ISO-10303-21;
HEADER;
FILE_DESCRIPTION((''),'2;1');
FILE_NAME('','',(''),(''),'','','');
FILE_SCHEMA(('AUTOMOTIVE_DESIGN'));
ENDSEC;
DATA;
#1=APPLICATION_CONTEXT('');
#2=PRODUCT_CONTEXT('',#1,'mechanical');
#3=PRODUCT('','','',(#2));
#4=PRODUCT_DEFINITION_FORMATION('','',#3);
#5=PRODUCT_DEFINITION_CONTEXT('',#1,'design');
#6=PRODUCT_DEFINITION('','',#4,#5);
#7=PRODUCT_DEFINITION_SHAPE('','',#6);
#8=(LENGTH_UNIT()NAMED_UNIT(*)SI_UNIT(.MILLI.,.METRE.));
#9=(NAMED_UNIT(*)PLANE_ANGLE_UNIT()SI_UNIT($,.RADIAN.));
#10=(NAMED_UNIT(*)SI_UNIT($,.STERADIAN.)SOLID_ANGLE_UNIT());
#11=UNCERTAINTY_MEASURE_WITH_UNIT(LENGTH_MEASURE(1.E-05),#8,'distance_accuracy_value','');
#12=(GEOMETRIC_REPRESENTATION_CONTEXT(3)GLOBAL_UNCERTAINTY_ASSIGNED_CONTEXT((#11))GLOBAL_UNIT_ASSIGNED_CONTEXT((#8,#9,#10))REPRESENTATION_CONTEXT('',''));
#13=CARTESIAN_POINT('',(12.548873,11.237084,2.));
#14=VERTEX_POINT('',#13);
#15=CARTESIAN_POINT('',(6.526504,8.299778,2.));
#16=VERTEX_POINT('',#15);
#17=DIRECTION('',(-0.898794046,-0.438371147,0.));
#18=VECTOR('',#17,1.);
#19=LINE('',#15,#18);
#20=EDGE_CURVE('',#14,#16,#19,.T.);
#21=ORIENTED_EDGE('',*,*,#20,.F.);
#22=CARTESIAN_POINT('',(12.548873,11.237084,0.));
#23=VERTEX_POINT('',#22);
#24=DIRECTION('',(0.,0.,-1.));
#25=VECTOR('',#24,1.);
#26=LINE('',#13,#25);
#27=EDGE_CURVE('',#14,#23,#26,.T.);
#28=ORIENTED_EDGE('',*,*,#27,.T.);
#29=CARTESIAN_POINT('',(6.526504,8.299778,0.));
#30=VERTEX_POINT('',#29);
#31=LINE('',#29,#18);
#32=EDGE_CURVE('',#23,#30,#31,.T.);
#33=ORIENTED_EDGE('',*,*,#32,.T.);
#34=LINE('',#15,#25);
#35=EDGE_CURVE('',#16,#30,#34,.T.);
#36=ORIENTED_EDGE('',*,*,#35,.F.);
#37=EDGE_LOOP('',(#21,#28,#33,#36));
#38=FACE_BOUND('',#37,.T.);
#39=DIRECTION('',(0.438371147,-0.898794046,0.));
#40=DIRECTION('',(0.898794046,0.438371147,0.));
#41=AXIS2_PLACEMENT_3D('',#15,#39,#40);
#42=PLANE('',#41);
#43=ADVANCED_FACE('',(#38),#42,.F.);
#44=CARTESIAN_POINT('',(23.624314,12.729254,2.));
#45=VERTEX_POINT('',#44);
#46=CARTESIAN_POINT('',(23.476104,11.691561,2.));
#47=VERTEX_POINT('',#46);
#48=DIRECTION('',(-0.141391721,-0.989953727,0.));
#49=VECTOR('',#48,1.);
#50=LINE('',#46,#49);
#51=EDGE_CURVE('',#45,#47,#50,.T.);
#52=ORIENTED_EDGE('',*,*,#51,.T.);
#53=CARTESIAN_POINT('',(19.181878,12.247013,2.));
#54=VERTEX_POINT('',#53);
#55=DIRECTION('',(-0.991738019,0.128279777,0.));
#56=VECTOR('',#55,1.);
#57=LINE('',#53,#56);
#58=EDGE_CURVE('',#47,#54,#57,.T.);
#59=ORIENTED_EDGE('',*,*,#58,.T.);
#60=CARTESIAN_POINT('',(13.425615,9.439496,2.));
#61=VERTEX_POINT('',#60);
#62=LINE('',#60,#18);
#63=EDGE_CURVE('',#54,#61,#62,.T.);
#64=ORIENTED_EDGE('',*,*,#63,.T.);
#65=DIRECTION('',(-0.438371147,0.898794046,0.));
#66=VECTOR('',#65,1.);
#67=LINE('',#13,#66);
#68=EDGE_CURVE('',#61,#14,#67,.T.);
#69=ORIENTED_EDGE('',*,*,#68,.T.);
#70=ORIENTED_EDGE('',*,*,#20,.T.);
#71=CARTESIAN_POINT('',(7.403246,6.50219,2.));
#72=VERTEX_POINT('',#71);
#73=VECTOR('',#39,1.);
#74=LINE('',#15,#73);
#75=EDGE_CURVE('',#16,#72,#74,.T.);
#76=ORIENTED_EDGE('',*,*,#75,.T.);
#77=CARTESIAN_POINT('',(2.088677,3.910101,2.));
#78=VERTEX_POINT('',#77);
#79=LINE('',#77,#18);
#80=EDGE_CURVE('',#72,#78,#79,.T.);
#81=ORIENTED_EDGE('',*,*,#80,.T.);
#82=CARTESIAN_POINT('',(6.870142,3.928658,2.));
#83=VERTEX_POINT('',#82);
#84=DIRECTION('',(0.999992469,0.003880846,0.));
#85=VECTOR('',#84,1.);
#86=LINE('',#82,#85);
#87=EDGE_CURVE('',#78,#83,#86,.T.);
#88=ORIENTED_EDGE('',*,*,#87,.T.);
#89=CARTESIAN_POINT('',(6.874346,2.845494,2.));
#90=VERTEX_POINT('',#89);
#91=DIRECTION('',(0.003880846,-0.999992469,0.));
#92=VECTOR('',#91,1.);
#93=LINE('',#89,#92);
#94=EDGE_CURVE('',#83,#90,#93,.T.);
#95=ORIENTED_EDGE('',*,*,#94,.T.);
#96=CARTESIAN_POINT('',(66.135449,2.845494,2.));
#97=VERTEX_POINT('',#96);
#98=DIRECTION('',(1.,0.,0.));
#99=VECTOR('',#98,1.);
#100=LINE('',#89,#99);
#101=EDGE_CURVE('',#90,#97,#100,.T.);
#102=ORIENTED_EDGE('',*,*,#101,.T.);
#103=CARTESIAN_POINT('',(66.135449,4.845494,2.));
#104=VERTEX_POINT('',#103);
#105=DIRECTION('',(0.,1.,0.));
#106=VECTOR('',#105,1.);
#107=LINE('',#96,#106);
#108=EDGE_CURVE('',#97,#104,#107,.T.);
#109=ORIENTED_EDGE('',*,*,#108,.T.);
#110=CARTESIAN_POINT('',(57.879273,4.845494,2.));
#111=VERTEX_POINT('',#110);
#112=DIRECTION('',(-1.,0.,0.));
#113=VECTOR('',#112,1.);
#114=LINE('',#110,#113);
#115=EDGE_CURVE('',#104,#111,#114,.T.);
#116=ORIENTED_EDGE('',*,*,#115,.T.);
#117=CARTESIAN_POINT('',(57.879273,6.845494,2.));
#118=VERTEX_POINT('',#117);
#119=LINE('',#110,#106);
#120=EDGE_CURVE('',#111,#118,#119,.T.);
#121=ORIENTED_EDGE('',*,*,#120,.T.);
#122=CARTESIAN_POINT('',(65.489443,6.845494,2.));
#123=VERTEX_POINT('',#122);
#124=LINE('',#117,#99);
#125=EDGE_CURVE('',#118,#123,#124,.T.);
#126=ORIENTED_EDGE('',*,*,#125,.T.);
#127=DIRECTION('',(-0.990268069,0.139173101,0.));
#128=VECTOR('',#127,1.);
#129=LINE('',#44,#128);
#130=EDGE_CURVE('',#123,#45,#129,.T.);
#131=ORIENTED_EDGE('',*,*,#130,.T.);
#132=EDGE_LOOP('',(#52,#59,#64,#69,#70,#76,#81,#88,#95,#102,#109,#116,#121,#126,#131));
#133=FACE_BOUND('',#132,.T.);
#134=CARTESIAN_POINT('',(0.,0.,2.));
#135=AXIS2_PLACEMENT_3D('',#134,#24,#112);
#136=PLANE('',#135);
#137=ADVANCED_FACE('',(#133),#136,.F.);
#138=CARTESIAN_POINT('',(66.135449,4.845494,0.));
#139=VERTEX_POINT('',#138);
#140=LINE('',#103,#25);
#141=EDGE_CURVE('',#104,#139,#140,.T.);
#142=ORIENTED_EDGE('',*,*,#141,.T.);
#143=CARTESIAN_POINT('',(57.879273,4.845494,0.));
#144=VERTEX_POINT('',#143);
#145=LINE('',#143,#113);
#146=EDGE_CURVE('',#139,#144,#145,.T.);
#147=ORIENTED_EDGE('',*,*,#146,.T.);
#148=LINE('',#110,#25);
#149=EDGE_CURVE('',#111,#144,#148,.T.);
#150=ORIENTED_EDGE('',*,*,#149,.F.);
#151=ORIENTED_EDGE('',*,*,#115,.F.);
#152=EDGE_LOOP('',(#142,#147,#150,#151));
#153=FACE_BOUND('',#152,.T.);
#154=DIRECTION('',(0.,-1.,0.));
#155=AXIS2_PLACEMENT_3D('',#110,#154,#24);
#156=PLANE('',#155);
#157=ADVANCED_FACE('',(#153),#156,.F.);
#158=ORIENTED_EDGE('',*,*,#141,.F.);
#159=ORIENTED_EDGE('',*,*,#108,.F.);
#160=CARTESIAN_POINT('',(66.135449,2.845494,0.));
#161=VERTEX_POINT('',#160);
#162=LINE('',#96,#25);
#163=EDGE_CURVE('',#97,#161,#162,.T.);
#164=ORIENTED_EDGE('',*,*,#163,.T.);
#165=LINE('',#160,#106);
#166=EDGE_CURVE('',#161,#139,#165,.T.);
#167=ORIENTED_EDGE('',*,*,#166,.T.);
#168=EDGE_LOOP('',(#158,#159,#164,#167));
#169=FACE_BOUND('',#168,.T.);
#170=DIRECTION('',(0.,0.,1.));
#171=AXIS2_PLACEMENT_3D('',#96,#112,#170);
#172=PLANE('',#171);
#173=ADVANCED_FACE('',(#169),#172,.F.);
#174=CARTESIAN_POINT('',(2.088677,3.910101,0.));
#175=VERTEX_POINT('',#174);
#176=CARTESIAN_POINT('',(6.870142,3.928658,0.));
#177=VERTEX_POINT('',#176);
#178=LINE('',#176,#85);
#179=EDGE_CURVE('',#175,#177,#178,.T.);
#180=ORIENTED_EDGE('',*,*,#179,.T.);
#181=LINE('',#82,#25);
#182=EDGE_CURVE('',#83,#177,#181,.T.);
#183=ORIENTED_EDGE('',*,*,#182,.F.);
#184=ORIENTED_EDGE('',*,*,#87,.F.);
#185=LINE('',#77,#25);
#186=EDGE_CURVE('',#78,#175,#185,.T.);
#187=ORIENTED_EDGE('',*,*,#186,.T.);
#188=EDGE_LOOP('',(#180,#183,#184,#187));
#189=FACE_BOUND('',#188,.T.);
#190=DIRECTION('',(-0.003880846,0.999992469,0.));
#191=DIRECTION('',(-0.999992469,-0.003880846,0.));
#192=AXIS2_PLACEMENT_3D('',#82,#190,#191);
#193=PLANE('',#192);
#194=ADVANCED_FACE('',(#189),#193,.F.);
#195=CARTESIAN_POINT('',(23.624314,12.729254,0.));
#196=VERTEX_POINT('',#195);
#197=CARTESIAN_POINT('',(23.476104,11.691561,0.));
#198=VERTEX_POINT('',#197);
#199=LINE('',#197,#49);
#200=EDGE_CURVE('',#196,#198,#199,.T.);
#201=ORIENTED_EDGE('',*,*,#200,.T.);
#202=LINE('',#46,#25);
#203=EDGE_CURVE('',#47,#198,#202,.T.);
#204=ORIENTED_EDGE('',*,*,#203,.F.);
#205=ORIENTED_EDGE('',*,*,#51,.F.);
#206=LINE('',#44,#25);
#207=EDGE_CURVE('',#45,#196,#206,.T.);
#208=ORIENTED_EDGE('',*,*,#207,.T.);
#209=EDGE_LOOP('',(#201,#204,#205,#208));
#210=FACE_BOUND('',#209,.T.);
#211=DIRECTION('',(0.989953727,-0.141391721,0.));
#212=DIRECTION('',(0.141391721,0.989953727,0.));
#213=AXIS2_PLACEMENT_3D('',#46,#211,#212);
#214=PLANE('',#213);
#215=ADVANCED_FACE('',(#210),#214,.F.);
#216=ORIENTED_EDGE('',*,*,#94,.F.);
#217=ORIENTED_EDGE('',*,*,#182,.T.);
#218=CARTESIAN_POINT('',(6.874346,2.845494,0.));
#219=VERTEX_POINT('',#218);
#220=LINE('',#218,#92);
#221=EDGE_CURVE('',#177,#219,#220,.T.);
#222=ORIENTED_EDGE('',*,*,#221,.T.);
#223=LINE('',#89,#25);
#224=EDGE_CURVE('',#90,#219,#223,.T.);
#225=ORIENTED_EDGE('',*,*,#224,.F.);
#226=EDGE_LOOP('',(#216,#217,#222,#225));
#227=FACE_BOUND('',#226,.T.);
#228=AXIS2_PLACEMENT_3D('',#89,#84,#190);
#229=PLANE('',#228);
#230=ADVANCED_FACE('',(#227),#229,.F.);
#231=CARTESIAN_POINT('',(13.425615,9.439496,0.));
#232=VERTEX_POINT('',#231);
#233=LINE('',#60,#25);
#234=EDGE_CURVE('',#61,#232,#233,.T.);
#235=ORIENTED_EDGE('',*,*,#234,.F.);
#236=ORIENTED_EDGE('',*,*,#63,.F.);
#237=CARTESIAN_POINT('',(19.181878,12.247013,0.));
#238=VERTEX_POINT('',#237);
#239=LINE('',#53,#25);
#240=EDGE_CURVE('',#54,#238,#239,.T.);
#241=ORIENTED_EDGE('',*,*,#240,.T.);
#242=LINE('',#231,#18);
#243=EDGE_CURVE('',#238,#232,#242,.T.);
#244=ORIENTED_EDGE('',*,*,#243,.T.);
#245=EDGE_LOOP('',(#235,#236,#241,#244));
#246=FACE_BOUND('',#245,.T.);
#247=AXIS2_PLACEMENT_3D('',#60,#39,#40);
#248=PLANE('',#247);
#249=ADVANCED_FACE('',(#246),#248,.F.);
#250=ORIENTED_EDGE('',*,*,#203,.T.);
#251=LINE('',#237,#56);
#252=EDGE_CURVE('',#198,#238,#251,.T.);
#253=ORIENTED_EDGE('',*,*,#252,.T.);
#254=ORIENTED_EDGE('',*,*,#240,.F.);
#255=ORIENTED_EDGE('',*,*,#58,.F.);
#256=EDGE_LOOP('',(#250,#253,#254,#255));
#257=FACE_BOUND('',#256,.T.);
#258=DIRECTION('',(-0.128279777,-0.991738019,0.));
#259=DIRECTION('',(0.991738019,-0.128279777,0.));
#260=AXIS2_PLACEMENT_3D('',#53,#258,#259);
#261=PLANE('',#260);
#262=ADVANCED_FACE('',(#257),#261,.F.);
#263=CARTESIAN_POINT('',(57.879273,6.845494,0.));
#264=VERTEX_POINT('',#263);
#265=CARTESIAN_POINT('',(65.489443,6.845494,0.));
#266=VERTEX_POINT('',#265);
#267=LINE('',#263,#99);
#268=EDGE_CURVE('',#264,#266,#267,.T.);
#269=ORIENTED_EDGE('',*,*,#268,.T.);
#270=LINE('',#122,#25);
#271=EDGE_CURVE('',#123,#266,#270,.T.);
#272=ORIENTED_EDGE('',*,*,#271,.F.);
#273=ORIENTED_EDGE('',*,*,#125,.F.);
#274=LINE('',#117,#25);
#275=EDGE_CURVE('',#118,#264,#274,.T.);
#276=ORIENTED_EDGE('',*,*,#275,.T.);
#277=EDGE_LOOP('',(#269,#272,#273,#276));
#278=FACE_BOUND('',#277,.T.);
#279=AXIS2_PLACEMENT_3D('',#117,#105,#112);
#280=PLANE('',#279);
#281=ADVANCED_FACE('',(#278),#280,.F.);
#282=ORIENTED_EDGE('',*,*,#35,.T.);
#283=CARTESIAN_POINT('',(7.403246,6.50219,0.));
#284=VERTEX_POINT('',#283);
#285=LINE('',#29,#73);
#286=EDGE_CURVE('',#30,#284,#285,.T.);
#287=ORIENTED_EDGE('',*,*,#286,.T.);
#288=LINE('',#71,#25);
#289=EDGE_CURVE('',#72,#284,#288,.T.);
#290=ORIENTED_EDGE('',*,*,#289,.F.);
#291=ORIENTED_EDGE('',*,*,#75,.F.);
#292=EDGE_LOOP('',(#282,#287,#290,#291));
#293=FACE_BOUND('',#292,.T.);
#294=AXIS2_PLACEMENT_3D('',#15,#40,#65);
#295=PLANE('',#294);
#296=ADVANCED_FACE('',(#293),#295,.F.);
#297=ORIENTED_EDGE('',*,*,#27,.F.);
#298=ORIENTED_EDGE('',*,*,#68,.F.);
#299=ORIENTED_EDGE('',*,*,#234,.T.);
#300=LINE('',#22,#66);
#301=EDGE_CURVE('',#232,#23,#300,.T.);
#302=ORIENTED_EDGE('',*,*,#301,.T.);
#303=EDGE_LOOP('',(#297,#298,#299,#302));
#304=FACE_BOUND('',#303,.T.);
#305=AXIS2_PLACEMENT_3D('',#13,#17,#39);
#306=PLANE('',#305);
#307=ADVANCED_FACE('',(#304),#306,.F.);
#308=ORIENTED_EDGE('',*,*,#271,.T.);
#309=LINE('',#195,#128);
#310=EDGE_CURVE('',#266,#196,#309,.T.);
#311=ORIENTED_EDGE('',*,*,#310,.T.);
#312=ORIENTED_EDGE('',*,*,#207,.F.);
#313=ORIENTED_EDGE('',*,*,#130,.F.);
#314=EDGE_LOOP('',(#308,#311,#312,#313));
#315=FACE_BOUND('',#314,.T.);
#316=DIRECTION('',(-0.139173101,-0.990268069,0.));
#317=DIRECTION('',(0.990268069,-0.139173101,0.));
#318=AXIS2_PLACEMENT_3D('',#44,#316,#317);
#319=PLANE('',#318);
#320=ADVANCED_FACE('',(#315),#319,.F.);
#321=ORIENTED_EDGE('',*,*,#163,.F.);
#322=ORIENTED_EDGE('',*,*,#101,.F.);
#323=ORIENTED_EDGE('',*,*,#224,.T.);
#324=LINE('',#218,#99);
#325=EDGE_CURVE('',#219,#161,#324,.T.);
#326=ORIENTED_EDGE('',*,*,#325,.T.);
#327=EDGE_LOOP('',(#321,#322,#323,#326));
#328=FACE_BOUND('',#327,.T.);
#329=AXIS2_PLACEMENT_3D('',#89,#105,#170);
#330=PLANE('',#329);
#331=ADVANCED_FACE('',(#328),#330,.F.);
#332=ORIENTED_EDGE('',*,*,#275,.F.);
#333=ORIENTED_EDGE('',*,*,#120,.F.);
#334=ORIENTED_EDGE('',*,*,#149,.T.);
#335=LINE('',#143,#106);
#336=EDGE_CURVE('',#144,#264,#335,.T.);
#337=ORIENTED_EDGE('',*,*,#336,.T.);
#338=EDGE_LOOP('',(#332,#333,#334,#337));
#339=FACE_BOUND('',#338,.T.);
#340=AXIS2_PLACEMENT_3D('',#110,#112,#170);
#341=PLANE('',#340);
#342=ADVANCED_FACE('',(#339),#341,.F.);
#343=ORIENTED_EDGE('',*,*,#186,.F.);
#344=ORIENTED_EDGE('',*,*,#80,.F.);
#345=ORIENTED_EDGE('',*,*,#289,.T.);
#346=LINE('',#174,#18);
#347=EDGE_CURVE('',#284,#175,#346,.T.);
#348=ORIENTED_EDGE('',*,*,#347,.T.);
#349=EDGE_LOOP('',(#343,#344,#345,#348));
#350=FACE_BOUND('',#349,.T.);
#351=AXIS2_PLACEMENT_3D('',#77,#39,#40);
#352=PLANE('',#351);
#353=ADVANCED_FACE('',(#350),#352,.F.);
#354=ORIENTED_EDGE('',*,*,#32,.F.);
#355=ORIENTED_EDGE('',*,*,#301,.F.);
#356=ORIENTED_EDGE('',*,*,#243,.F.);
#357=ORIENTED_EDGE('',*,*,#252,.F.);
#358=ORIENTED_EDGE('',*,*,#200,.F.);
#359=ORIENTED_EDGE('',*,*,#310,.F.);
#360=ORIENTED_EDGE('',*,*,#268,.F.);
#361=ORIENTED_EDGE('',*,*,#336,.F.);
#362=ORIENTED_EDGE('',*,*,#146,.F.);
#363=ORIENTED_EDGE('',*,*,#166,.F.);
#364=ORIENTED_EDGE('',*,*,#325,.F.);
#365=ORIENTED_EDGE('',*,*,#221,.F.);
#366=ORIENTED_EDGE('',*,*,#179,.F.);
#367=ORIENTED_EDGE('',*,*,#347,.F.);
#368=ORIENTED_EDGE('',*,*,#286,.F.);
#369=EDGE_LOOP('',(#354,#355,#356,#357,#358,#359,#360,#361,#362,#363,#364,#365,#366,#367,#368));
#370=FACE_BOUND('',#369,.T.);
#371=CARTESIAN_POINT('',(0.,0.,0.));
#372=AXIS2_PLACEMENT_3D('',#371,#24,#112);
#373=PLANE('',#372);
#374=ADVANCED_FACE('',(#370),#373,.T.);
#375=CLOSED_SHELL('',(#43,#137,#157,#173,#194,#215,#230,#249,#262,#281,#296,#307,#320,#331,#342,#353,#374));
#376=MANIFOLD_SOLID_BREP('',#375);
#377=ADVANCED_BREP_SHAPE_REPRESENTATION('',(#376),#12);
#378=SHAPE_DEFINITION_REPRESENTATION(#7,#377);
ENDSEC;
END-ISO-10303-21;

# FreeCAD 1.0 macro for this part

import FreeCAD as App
import Part
import Sketcher
Q = App.Units.Quantity


def add_polygon(sketch, points):
    """Adds a closed chain of lines whose ends are joined by coincident constraints."""
    first, n = sketch.GeometryCount, len(points)
    for a, b in zip(points, points[1:] + points[:1]):
        sketch.addGeometry(Part.LineSegment(App.Vector(*a, 0), App.Vector(*b, 0)), False)
    for i in range(n):
        sketch.addConstraint(Sketcher.Constraint("Coincident", first + i, 2, first + (i + 1) % n, 1))

doc = App.newDocument("Part")
params = doc.addObject("Spreadsheet::Sheet", "Params")
for row, (alias, value) in enumerate([
    ("sketch1_height", "2 mm"),
    ("sketch1_length", "2 mm"),
    ("sketch1_length2", "4.33 mm"),
    ("pad1_length", "2 mm"),
], start=1):
    params.set(f"A{row}", alias)
    params.set(f"B{row}", "=" + value)
    params.setAlias(f"B{row}", alias)

body = doc.addObject("PartDesign::Body", "Body")

# Sketch on XY plane
sketch1 = body.newObject("Sketcher::SketchObject", "Sketch")
sketch1.AttachmentSupport = (doc.getObject("XY_Plane"), [""])
sketch1.MapMode = "FlatFace"
add_polygon(sketch1, [(7.4, 6.5), (2.1, 3.9), (6.9, 3.9), (6.9, 2.8), (66.1, 2.8), (66.1, 4.8), (57.9, 4.8), (57.9, 6.8), (65.5, 6.8), (23.6, 12.7), (23.5, 11.7), (19.2, 12.2), (13.4, 9.4), (12.5, 11.2), (6.5, 8.3)])  # lines 0-14
sketch1.addConstraint([
    Sketcher.Constraint("Horizontal", 3),
    Sketcher.Constraint("Vertical", 4),
    Sketcher.Constraint("Horizontal", 5),
    Sketcher.Constraint("Vertical", 6),
    Sketcher.Constraint("Horizontal", 7),
    Sketcher.Constraint("Perpendicular", 1, 2),
    Sketcher.Constraint("Parallel", 0, 11),
    Sketcher.Constraint("Perpendicular", 11, 12),
    Sketcher.Constraint("Perpendicular", 12, 13),
    Sketcher.Constraint("Perpendicular", 13, 14),
    Sketcher.Constraint("Equal", 4, 6),
    Sketcher.Constraint("Equal", 12, 14),
    Sketcher.Constraint("DistanceY", 4, 1, 4, 2, Q("2 mm")),
    Sketcher.Constraint("Angle", 0, Q("-154 deg")),
    Sketcher.Constraint("Angle", 8, Q("172 deg")),
    Sketcher.Constraint("Distance", 12, Q("2 mm")),
    Sketcher.Constraint("Distance", 10, Q("4.33 mm")),
    Sketcher.Constraint("Distance", 0, Q("5.913 mm")),
    Sketcher.Constraint("Distance", 1, Q("4.781502 mm")),
    Sketcher.Constraint("Distance", 13, Q("6.7005 mm")),
    Sketcher.Constraint("DistanceX", 7, 1, 7, 2, Q("7.610171 mm")),
    Sketcher.Constraint("DistanceY", -1, 1, 0, 2, Q("3.910101 mm")),
    Sketcher.Constraint("DistanceX", 1, 2, 7, 2, Q("58.619301 mm")),
    Sketcher.Constraint("DistanceX", 0, 2, 10, 2, Q("17.093202 mm")),
    Sketcher.Constraint("DistanceX", 11, 2, 8, 2, Q("10.198699 mm")),
    Sketcher.Constraint("DistanceX", 2, 2, 14, 2, Q("0.5289 mm")),
    Sketcher.Constraint("DistanceX", 3, 1, 3, 2, Q("59.261103 mm")),
    Sketcher.Constraint("DistanceX", -1, 1, 3, 2, Q("66.135449 mm")),
    Sketcher.Constraint("DistanceY", -1, 1, 9, 2, Q("11.691561 mm")),
    Sketcher.Constraint("DistanceY", 10, 2, 8, 2, Q("0.482241 mm")),
])
sketch1.setExpression("Constraints[27]", "Params.sketch1_height")
sketch1.setExpression("Constraints[30]", "Params.sketch1_length")
sketch1.setExpression("Constraints[31]", "Params.sketch1_length2")
pad1 = body.newObject("PartDesign::Pad", "Pad")
pad1.Profile = sketch1
pad1.setExpression("Length", "Params.pad1_length")

doc.recompute()
